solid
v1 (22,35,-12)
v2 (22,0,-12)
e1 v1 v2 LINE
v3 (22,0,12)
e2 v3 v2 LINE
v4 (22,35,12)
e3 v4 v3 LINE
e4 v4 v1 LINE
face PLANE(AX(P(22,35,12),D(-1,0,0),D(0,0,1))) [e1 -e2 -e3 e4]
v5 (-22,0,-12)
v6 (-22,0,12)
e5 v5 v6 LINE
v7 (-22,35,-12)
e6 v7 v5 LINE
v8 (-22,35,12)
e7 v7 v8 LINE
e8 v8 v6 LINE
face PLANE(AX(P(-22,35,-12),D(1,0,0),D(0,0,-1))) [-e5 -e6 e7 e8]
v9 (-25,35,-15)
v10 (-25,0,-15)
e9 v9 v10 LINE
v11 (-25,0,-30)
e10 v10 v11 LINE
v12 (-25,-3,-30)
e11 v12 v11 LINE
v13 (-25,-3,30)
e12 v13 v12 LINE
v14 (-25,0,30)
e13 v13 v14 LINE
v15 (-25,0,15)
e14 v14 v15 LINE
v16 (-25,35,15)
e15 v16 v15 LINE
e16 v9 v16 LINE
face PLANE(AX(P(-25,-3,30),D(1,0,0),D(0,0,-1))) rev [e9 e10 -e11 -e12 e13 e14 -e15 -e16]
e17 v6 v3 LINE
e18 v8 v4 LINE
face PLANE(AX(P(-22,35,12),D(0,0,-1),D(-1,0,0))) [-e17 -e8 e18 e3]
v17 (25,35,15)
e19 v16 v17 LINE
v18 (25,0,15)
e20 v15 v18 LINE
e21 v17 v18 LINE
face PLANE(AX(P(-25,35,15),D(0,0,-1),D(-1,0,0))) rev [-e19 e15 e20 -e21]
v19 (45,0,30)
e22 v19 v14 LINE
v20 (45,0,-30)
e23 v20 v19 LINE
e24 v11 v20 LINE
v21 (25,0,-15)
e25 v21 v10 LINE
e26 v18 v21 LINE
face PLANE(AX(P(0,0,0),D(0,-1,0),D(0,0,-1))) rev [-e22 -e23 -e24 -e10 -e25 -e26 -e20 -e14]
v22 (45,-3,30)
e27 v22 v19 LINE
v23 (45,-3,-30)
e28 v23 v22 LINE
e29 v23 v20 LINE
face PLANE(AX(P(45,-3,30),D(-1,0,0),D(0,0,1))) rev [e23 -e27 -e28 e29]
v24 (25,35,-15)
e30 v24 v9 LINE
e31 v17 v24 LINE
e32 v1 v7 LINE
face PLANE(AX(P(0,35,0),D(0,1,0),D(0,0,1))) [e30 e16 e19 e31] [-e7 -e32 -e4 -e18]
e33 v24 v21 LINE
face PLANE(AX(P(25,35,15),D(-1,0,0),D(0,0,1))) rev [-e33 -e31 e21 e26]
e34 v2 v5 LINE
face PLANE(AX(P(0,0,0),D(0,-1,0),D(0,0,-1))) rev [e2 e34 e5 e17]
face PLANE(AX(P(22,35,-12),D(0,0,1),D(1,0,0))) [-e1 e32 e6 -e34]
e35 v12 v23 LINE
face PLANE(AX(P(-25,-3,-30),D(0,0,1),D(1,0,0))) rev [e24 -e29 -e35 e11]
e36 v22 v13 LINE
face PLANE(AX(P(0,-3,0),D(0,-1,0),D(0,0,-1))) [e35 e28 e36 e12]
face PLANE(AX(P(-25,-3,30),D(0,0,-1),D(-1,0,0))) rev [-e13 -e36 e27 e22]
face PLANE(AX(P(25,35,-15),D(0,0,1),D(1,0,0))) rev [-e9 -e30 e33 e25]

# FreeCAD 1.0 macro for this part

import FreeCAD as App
import Part
import Sketcher

doc = App.newDocument("Part")
params = doc.addObject("Spreadsheet::Sheet", "Params")
for row, (alias, value) in enumerate([
    ("sketch1_width", "40 mm"),
    ("sketch1_height", "20 mm"),
    ("pad1_length", "35 mm"),
    ("sketch2_width", "50 mm"),
    ("sketch2_width2", "44 mm"),
    ("sketch2_height", "30 mm"),
    ("sketch2_height2", "24 mm"),
    ("pad2_length", "35 mm"),
    ("sketch3_width", "70 mm"),
    ("sketch3_height", "60 mm"),
    ("pad3_length", "3 mm"),
    ("sketch4_width", "40 mm"),
    ("sketch4_height", "20 mm"),
    ("pocket1_length", "35 mm"),
], start=1):
    params.set(f"A{row}", alias)
    params.set(f"B{row}", "=" + value)
    params.setAlias(f"B{row}", alias)

body = doc.addObject("PartDesign::Body", "Body")

sketch1 = doc.addObject("Sketcher::SketchObject", "Sketch")
body.addObject(sketch1)
sketch1.AttachmentSupport = (doc.XZ_Plane, [""])
sketch1.MapMode = "FlatFace"
sketch1.addGeometry(Part.LineSegment(App.Vector(-20, -10, 0), App.Vector(-20, 10, 0)), False)
sketch1.addGeometry(Part.LineSegment(App.Vector(-20, 10, 0), App.Vector(20, 10, 0)), False)
sketch1.addGeometry(Part.LineSegment(App.Vector(20, 10, 0), App.Vector(20, -10, 0)), False)
sketch1.addGeometry(Part.LineSegment(App.Vector(20, -10, 0), App.Vector(-20, -10, 0)), False)
sketch1.addConstraint(Sketcher.Constraint("Coincident", 0, 2, 1, 1))
sketch1.addConstraint(Sketcher.Constraint("Coincident", 1, 2, 2, 1))
sketch1.addConstraint(Sketcher.Constraint("Coincident", 2, 2, 3, 1))
sketch1.addConstraint(Sketcher.Constraint("Coincident", 3, 2, 0, 1))
sketch1.addConstraint(Sketcher.Constraint("Vertical", 0))
sketch1.addConstraint(Sketcher.Constraint("Horizontal", 1))
sketch1.addConstraint(Sketcher.Constraint("Vertical", 2))
sketch1.addConstraint(Sketcher.Constraint("Horizontal", 3))
sketch1.addConstraint(Sketcher.Constraint("Symmetric", 0, 2, 2, 2, -1, 1))
sketch1.addConstraint(Sketcher.Constraint("DistanceX", 1, 1, 1, 2, 40.0))
sketch1.addConstraint(Sketcher.Constraint("DistanceY", 0, 1, 0, 2, 20.0))
sketch1.setExpression("Constraints[9]", "Params.sketch1_width")
sketch1.setExpression("Constraints[10]", "Params.sketch1_height")
pad1 = doc.addObject("PartDesign::Pad", "Pad")
body.addObject(pad1)
pad1.Profile = sketch1
pad1.setExpression("Length", "Params.pad1_length")
pad1.Reversed = True
body2 = doc.addObject("PartDesign::Body", "Body001")

sketch2 = doc.addObject("Sketcher::SketchObject", "Sketch001")
body2.addObject(sketch2)
sketch2.AttachmentSupport = (doc.getObject("XZ_Plane001"), [""])
sketch2.MapMode = "FlatFace"
sketch2.addGeometry(Part.LineSegment(App.Vector(-25, -15, 0), App.Vector(-25, 15, 0)), False)
sketch2.addGeometry(Part.LineSegment(App.Vector(-25, 15, 0), App.Vector(25, 15, 0)), False)
sketch2.addGeometry(Part.LineSegment(App.Vector(25, 15, 0), App.Vector(25, -15, 0)), False)
sketch2.addGeometry(Part.LineSegment(App.Vector(25, -15, 0), App.Vector(-25, -15, 0)), False)
sketch2.addGeometry(Part.LineSegment(App.Vector(22, 12, 0), App.Vector(-22, 12, 0)), False)
sketch2.addGeometry(Part.LineSegment(App.Vector(-22, 12, 0), App.Vector(-22, -12, 0)), False)
sketch2.addGeometry(Part.LineSegment(App.Vector(-22, -12, 0), App.Vector(22, -12, 0)), False)
sketch2.addGeometry(Part.LineSegment(App.Vector(22, -12, 0), App.Vector(22, 12, 0)), False)
sketch2.addConstraint(Sketcher.Constraint("Coincident", 0, 2, 1, 1))
sketch2.addConstraint(Sketcher.Constraint("Coincident", 1, 2, 2, 1))
sketch2.addConstraint(Sketcher.Constraint("Coincident", 2, 2, 3, 1))
sketch2.addConstraint(Sketcher.Constraint("Coincident", 3, 2, 0, 1))
sketch2.addConstraint(Sketcher.Constraint("Coincident", 4, 2, 5, 1))
sketch2.addConstraint(Sketcher.Constraint("Coincident", 5, 2, 6, 1))
sketch2.addConstraint(Sketcher.Constraint("Coincident", 6, 2, 7, 1))
sketch2.addConstraint(Sketcher.Constraint("Coincident", 7, 2, 4, 1))
sketch2.addConstraint(Sketcher.Constraint("Vertical", 0))
sketch2.addConstraint(Sketcher.Constraint("Horizontal", 1))
sketch2.addConstraint(Sketcher.Constraint("Vertical", 2))
sketch2.addConstraint(Sketcher.Constraint("Horizontal", 3))
sketch2.addConstraint(Sketcher.Constraint("Horizontal", 4))
sketch2.addConstraint(Sketcher.Constraint("Vertical", 5))
sketch2.addConstraint(Sketcher.Constraint("Horizontal", 6))
sketch2.addConstraint(Sketcher.Constraint("Vertical", 7))
sketch2.addConstraint(Sketcher.Constraint("Symmetric", 0, 2, 2, 2, -1, 1))
sketch2.addConstraint(Sketcher.Constraint("Symmetric", 4, 2, 6, 2, -1, 1))
sketch2.addConstraint(Sketcher.Constraint("DistanceX", 1, 1, 1, 2, 50.0))
sketch2.addConstraint(Sketcher.Constraint("DistanceX", 4, 2, 4, 1, 44.0))
sketch2.addConstraint(Sketcher.Constraint("DistanceY", 0, 1, 0, 2, 30.0))
sketch2.addConstraint(Sketcher.Constraint("DistanceY", 5, 2, 5, 1, 24.0))
sketch2.setExpression("Constraints[18]", "Params.sketch2_width")
sketch2.setExpression("Constraints[19]", "Params.sketch2_width2")
sketch2.setExpression("Constraints[20]", "Params.sketch2_height")
sketch2.setExpression("Constraints[21]", "Params.sketch2_height2")
pad2 = doc.addObject("PartDesign::Pad", "Pad001")
body2.addObject(pad2)
pad2.Profile = sketch2
pad2.setExpression("Length", "Params.pad2_length")
pad2.Reversed = True
body.AllowCompound = True
doc.recompute()

boolean = doc.addObject("PartDesign::Boolean", "Boolean")
body.addObject(boolean)
boolean.Type = "Fuse"
boolean.addObjects([body2])

sketch3 = doc.addObject("Sketcher::SketchObject", "Sketch002")
body.addObject(sketch3)
sketch3.AttachmentSupport = (doc.XZ_Plane, [""])
sketch3.MapMode = "FlatFace"
sketch3.addGeometry(Part.LineSegment(App.Vector(-25, 30, 0), App.Vector(-25, -30, 0)), False)
sketch3.addGeometry(Part.LineSegment(App.Vector(-25, -30, 0), App.Vector(45, -30, 0)), False)
sketch3.addGeometry(Part.LineSegment(App.Vector(45, -30, 0), App.Vector(45, 30, 0)), False)
sketch3.addGeometry(Part.LineSegment(App.Vector(45, 30, 0), App.Vector(-25, 30, 0)), False)
sketch3.addConstraint(Sketcher.Constraint("Coincident", 0, 2, 1, 1))
sketch3.addConstraint(Sketcher.Constraint("Coincident", 1, 2, 2, 1))
sketch3.addConstraint(Sketcher.Constraint("Coincident", 2, 2, 3, 1))
sketch3.addConstraint(Sketcher.Constraint("Coincident", 3, 2, 0, 1))
sketch3.addConstraint(Sketcher.Constraint("Vertical", 0))
sketch3.addConstraint(Sketcher.Constraint("Horizontal", 1))
sketch3.addConstraint(Sketcher.Constraint("Vertical", 2))
sketch3.addConstraint(Sketcher.Constraint("Horizontal", 3))
sketch3.addConstraint(Sketcher.Constraint("DistanceX", 1, 1, 1, 2, 70.0))
sketch3.addConstraint(Sketcher.Constraint("DistanceY", 0, 2, 0, 1, 60.0))
sketch3.addConstraint(Sketcher.Constraint("DistanceX", 0, 2, -1, 1, 25.0))
sketch3.addConstraint(Sketcher.Constraint("DistanceY", 0, 2, -1, 1, 30.0))
sketch3.setExpression("Constraints[8]", "Params.sketch3_width")
sketch3.setExpression("Constraints[9]", "Params.sketch3_height")
pad3 = doc.addObject("PartDesign::Pad", "Pad002")
body.addObject(pad3)
pad3.Profile = sketch3
pad3.setExpression("Length", "Params.pad3_length")

sketch4 = doc.addObject("Sketcher::SketchObject", "Sketch003")
body.addObject(sketch4)
sketch4.AttachmentSupport = (doc.XZ_Plane, [""])
sketch4.MapMode = "FlatFace"
sketch4.AttachmentOffset = App.Placement(App.Vector(0, 0, -35), App.Rotation())
sketch4.addGeometry(Part.LineSegment(App.Vector(-20, -10, 0), App.Vector(-20, 10, 0)), False)
sketch4.addGeometry(Part.LineSegment(App.Vector(-20, 10, 0), App.Vector(20, 10, 0)), False)
sketch4.addGeometry(Part.LineSegment(App.Vector(20, 10, 0), App.Vector(20, -10, 0)), False)
sketch4.addGeometry(Part.LineSegment(App.Vector(20, -10, 0), App.Vector(-20, -10, 0)), False)
sketch4.addConstraint(Sketcher.Constraint("Coincident", 0, 2, 1, 1))
sketch4.addConstraint(Sketcher.Constraint("Coincident", 1, 2, 2, 1))
sketch4.addConstraint(Sketcher.Constraint("Coincident", 2, 2, 3, 1))
sketch4.addConstraint(Sketcher.Constraint("Coincident", 3, 2, 0, 1))
sketch4.addConstraint(Sketcher.Constraint("Vertical", 0))
sketch4.addConstraint(Sketcher.Constraint("Horizontal", 1))
sketch4.addConstraint(Sketcher.Constraint("Vertical", 2))
sketch4.addConstraint(Sketcher.Constraint("Horizontal", 3))
sketch4.addConstraint(Sketcher.Constraint("Symmetric", 0, 2, 2, 2, -1, 1))
sketch4.addConstraint(Sketcher.Constraint("DistanceX", 1, 1, 1, 2, 40.0))
sketch4.addConstraint(Sketcher.Constraint("DistanceY", 0, 1, 0, 2, 20.0))
sketch4.setExpression("Constraints[9]", "Params.sketch4_width")
sketch4.setExpression("Constraints[10]", "Params.sketch4_height")
pocket1 = doc.addObject("PartDesign::Pocket", "Pocket")
body.addObject(pocket1)
pocket1.Profile = sketch4
pocket1.setExpression("Length", "Params.pocket1_length")
pocket1.Reversed = True

doc.recompute()
